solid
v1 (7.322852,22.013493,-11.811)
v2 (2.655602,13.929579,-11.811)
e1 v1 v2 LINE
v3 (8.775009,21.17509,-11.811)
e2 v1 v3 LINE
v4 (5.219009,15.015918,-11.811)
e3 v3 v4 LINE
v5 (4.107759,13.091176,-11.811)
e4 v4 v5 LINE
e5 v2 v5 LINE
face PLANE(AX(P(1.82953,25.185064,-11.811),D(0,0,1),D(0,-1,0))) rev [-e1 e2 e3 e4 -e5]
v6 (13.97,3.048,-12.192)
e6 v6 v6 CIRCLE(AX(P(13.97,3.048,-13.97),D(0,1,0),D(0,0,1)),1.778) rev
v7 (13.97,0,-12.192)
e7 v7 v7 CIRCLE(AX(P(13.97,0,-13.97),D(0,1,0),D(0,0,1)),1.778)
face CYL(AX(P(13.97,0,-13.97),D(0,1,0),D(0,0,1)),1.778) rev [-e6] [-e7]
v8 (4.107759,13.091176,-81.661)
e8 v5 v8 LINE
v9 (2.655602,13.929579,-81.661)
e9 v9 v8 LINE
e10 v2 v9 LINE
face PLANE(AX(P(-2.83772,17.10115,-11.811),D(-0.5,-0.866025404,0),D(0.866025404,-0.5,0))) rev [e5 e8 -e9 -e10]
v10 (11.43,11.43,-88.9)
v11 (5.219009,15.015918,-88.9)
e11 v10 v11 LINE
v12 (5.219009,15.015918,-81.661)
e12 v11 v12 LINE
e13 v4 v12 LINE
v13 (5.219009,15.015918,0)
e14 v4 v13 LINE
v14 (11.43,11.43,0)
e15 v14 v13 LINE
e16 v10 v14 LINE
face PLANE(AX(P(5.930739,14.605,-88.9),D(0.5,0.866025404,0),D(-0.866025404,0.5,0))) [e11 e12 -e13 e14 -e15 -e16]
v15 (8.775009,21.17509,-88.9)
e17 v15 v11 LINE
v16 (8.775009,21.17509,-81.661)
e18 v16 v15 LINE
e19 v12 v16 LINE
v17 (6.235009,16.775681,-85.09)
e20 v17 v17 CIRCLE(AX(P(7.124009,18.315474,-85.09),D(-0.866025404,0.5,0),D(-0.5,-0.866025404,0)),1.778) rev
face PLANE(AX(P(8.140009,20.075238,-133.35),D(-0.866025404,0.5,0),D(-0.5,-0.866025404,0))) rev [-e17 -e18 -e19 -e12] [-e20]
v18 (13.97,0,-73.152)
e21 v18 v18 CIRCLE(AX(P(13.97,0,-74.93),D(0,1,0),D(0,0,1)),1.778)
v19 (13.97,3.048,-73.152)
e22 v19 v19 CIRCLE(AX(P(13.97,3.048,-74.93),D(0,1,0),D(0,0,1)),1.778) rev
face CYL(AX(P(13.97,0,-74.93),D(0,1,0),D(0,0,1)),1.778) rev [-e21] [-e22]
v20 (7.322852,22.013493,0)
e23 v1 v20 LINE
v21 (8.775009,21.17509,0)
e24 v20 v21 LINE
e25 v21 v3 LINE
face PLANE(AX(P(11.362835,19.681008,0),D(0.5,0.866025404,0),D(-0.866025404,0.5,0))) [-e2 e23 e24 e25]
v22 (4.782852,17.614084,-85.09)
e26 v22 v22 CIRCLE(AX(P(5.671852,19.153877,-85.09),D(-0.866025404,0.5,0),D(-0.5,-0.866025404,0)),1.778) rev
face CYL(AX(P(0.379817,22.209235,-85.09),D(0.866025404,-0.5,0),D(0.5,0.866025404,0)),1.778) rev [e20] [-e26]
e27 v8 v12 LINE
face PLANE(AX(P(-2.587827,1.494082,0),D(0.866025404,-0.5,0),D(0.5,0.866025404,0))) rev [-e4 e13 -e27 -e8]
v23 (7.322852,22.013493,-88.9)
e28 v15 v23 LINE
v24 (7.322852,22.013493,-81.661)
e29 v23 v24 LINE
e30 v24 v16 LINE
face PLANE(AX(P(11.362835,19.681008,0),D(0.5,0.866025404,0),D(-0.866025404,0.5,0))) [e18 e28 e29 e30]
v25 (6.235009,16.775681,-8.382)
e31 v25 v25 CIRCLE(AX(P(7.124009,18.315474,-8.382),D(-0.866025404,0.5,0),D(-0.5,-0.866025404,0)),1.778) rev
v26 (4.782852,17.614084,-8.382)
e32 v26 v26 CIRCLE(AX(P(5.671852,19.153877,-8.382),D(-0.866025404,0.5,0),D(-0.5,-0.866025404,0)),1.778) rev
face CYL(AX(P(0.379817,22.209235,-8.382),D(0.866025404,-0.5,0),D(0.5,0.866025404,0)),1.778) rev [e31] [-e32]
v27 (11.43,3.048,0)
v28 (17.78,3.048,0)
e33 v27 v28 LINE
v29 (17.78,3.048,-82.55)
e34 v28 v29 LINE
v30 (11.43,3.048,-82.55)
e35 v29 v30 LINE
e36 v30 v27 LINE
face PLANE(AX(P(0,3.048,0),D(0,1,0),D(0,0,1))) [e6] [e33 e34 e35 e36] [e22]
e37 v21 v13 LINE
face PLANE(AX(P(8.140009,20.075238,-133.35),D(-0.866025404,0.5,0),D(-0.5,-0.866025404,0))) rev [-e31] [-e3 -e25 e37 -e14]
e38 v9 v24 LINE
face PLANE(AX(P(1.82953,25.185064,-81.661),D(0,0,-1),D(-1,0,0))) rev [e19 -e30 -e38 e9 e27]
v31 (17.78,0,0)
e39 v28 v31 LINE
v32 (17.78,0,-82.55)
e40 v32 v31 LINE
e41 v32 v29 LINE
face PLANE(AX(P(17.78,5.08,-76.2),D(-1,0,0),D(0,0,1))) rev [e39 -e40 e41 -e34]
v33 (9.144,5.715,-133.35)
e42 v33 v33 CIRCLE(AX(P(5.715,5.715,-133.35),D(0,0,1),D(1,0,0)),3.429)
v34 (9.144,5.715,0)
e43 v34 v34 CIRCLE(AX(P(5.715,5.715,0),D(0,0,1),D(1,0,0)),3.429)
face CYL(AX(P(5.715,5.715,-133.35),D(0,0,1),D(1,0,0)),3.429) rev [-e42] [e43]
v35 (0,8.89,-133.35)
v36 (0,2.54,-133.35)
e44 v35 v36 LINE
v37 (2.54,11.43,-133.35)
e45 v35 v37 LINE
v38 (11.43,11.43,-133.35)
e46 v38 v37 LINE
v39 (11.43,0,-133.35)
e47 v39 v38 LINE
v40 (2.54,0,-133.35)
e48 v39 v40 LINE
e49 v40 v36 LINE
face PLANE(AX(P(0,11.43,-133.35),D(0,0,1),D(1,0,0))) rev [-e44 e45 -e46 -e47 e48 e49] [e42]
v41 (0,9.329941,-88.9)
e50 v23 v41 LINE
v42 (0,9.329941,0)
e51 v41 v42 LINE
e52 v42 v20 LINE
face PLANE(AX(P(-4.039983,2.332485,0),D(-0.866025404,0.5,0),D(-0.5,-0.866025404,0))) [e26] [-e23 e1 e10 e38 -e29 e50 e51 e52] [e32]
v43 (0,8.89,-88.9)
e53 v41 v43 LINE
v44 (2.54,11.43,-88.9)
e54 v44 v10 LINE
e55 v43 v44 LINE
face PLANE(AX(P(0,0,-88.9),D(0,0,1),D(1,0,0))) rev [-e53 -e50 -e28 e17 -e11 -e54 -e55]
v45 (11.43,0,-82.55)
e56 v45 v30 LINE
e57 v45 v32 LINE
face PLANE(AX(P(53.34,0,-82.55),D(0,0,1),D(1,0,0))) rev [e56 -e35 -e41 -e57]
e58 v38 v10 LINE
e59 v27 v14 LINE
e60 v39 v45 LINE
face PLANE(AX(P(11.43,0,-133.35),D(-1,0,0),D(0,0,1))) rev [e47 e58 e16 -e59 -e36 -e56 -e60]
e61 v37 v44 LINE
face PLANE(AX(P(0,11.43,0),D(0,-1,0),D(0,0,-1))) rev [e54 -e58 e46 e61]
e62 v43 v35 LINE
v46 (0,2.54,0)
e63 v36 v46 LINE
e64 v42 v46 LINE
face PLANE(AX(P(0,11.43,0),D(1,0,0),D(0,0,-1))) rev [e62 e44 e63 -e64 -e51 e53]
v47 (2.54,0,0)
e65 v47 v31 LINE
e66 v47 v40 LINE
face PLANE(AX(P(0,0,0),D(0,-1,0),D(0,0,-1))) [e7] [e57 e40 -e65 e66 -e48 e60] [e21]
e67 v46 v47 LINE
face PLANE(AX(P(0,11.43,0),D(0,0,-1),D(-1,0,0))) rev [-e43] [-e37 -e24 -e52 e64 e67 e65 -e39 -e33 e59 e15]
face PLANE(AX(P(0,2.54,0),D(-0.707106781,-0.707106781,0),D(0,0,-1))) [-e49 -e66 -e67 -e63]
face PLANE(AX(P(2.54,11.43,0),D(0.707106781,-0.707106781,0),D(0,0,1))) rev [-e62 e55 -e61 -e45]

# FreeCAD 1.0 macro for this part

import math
import FreeCAD as App
import Part
import Sketcher
from FreeCAD import Vector
Q = App.Units.Quantity


def edges_at(feature, points):
    """Names of the edges that pass closest to the given points."""
    edges = feature.Shape.Edges
    near = lambda p: min(range(len(edges)), key=lambda i: edges[i].distToShape(Part.Vertex(*p))[0])
    return sorted({f"Edge{near(p) + 1}" for p in points})

doc = App.newDocument("Part")
body = doc.addObject("PartDesign::Body", "Body")

# Sketch on XZ plane
sketch1 = body.newObject("Sketcher::SketchObject", "Sketch")
sketch1.AttachmentSupport = (doc.getObject("XZ_Plane"), [""])
sketch1.MapMode = "FlatFace"
sketch1.addGeometry([
    Part.LineSegment(Vector(0, -133, 0), Vector(0, 0, 0)),
    Part.LineSegment(Vector(0, 0, 0), Vector(77, 0, 0)),
    Part.LineSegment(Vector(77, 0, 0), Vector(77, -133, 0)),
    Part.LineSegment(Vector(77, -133, 0), Vector(0, -133, 0)),
], False)
sketch1.addConstraint([
    Sketcher.Constraint("Coincident", 0, 2, 1, 1),
    Sketcher.Constraint("Coincident", 1, 2, 2, 1),
    Sketcher.Constraint("Coincident", 2, 2, 3, 1),
    Sketcher.Constraint("Coincident", 3, 2, 0, 1),
    Sketcher.Constraint("Vertical", 0),
    Sketcher.Constraint("Horizontal", 1),
    Sketcher.Constraint("Vertical", 2),
    Sketcher.Constraint("Horizontal", 3),
    Sketcher.Constraint("Coincident", 0, 2, -1, 1),
    Sketcher.Constraint("DistanceX", 1, 1, 1, 2, Q("3.05 in")),
    Sketcher.Constraint("DistanceY", 0, 1, 0, 2, Q("5.25 in")),
])
pad1 = body.newObject("PartDesign::Pad", "Pad")
pad1.Profile = sketch1
pad1.Length = Q("0.45 in")
pad1.Reversed = True

# Sketch on XY plane
sketch2 = body.newObject("Sketcher::SketchObject", "Sketch001")
sketch2.AttachmentSupport = (doc.getObject("XY_Plane"), [""])
sketch2.MapMode = "FlatFace"
sketch2.addGeometry([
    Part.Circle(Vector(5.7, 5.7, 0), Vector(0, 0, 1), 3.4),
    Part.Circle(Vector(71.8, 5.7, 0), Vector(0, 0, 1), 3.4),
], False)
sketch2.addConstraint([
    Sketcher.Constraint("Equal", 0, 1),
    Sketcher.Constraint("Horizontal", 0, 3, 1, 3),
    Sketcher.Constraint("Diameter", 0, Q("0.27 in")),
    Sketcher.Constraint("DistanceX", 0, 3, 1, 3, Q("2.6 in")),
    Sketcher.Constraint("DistanceX", -1, 1, 0, 3, Q("0.225 in")),
    Sketcher.Constraint("DistanceY", -1, 1, 0, 3, Q("0.225 in")),
])
pocket1 = body.newObject("PartDesign::Pocket", "Pocket")
pocket1.Profile = sketch2
pocket1.Type = "ThroughAll"

# Sketch on XZ plane
sketch3 = body.newObject("Sketcher::SketchObject", "Sketch002")
sketch3.AttachmentSupport = (doc.getObject("XZ_Plane"), [""])
sketch3.MapMode = "FlatFace"
sketch3.AttachmentOffset = App.Placement(Vector(0, 0, -0.45 * 25.4), App.Rotation())
sketch3.addGeometry([
    Part.LineSegment(Vector(11, -133, 0), Vector(11, -95, 0)),  # 0
    Part.ArcOfCircle(Part.Circle(Vector(24, -95, 0), Vector(0, 0, 1), 13), math.radians(90), math.radians(180)),  # 1
    Part.LineSegment(Vector(24, -83, 0), Vector(53, -83, 0)),  # 2
    Part.ArcOfCircle(Part.Circle(Vector(53, -95, 0), Vector(0, 0, 1), 13), math.radians(0), math.radians(90)),  # 3
    Part.LineSegment(Vector(66, -95, 0), Vector(66, -133, 0)),  # 4
    Part.LineSegment(Vector(66, -133, 0), Vector(11, -133, 0)),  # 5
], False)
sketch3.addConstraint([
    Sketcher.Constraint("Tangent", 0, 2, 1, 2),
    Sketcher.Constraint("Tangent", 1, 1, 2, 1),
    Sketcher.Constraint("Tangent", 2, 2, 3, 2),
    Sketcher.Constraint("Tangent", 3, 1, 4, 1),
    Sketcher.Constraint("Coincident", 4, 2, 5, 1),
    Sketcher.Constraint("Coincident", 5, 2, 0, 1),
    Sketcher.Constraint("Vertical", 0),
    Sketcher.Constraint("Horizontal", 2),
    Sketcher.Constraint("Vertical", 4),
    Sketcher.Constraint("Horizontal", 5),
    Sketcher.Constraint("Equal", 1, 3),
    Sketcher.Constraint("Radius", 1, Q("0.5 in")),
    Sketcher.Constraint("DistanceY", 0, 1, 0, 2, Q("1.5 in")),
    Sketcher.Constraint("DistanceX", 2, 1, 2, 2, Q("1.15 in")),
    Sketcher.Constraint("DistanceX", -1, 1, 3, 3, Q("2.1 in")),
    Sketcher.Constraint("DistanceY", 1, 3, -1, 1, Q("3.75 in")),
])
pocket2 = body.newObject("PartDesign::Pocket", "Pocket001")
pocket2.Profile = sketch3
pocket2.Type = "ThroughAll"
pocket2.Reversed = True

# Sketch on XY plane
sketch4 = body.newObject("Sketcher::SketchObject", "Sketch003")
sketch4.AttachmentSupport = (doc.getObject("XY_Plane"), [""])
sketch4.MapMode = "FlatFace"
sketch4.AttachmentOffset = App.Placement(Vector(0, 0, -5.25 * 25.4), App.Rotation())
sketch4.addGeometry([
    Part.LineSegment(Vector(66, 11, 0), Vector(66, 5, 0)),
    Part.LineSegment(Vector(66, 5, 0), Vector(11, 5, 0)),
    Part.LineSegment(Vector(11, 5, 0), Vector(11, 11, 0)),
    Part.LineSegment(Vector(11, 11, 0), Vector(66, 11, 0)),
], False)
sketch4.addConstraint([
    Sketcher.Constraint("Coincident", 0, 2, 1, 1),
    Sketcher.Constraint("Coincident", 1, 2, 2, 1),
    Sketcher.Constraint("Coincident", 2, 2, 3, 1),
    Sketcher.Constraint("Coincident", 3, 2, 0, 1),
    Sketcher.Constraint("Vertical", 0),
    Sketcher.Constraint("Horizontal", 1),
    Sketcher.Constraint("Vertical", 2),
    Sketcher.Constraint("Horizontal", 3),
    Sketcher.Constraint("DistanceX", 1, 2, 1, 1, Q("2.15 in")),
    Sketcher.Constraint("DistanceY", 0, 2, 0, 1, Q("0.25 in")),
    Sketcher.Constraint("DistanceX", -1, 1, 0, 2, Q("2.6 in")),
    Sketcher.Constraint("DistanceY", -1, 1, 0, 2, Q("0.2 in")),
])
pocket3 = body.newObject("PartDesign::Pocket", "Pocket002")
pocket3.Profile = sketch4
pocket3.Type = "ThroughAll"
pocket3.Reversed = True
doc.recompute()

chamfer = body.newObject("PartDesign::Chamfer", "Chamfer")
chamfer.Base = (pocket3, edges_at(pocket3, [
    (77.47, 11.43, -66.675),
    (0, 11.43, -66.675),
    (77.47, 0, -66.675),
    (0, 0, -66.675),
]))
chamfer.Size = Q("0.1 in")

# Sketch on XZ plane
sketch5 = body.newObject("Sketcher::SketchObject", "Sketch004")
sketch5.AttachmentSupport = (doc.getObject("XZ_Plane"), [""])
sketch5.MapMode = "FlatFace"
sketch5.AttachmentOffset = App.Placement(Vector(0, 0, -0.45 * 25.4), App.Rotation())
sketch5.addGeometry([
    Part.LineSegment(Vector(11, -83, 0), Vector(77, -83, 0)),
    Part.LineSegment(Vector(77, -83, 0), Vector(77, -133, 0)),
    Part.LineSegment(Vector(77, -133, 0), Vector(11, -133, 0)),
    Part.LineSegment(Vector(11, -133, 0), Vector(11, -83, 0)),
], False)
sketch5.addConstraint([
    Sketcher.Constraint("Coincident", 0, 2, 1, 1),
    Sketcher.Constraint("Coincident", 1, 2, 2, 1),
    Sketcher.Constraint("Coincident", 2, 2, 3, 1),
    Sketcher.Constraint("Coincident", 3, 2, 0, 1),
    Sketcher.Constraint("Horizontal", 0),
    Sketcher.Constraint("Vertical", 1),
    Sketcher.Constraint("Horizontal", 2),
    Sketcher.Constraint("Vertical", 3),
    Sketcher.Constraint("DistanceY", 1, 2, 1, 1, Q("2 in")),
    Sketcher.Constraint("DistanceX", 0, 1, 0, 2, Q("2.6 in")),
    Sketcher.Constraint("DistanceX", -1, 1, 0, 2, Q("3.05 in")),
    Sketcher.Constraint("DistanceY", 0, 2, -1, 1, Q("3.25 in")),
])
pocket4 = body.newObject("PartDesign::Pocket", "Pocket003")
pocket4.Profile = sketch5
pocket4.Type = "ThroughAll"
pocket4.Reversed = True

# Sketch on XZ plane
sketch6 = body.newObject("Sketcher::SketchObject", "Sketch005")
sketch6.AttachmentSupport = (doc.getObject("XZ_Plane"), [""])
sketch6.MapMode = "FlatFace"
sketch6.AttachmentOffset = App.Placement(Vector(0, 0, -0.45 * 25.4), App.Rotation())
sketch6.addGeometry([
    Part.LineSegment(Vector(24, -83, 0), Vector(24, 0, 0)),
    Part.LineSegment(Vector(24, 0, 0), Vector(77, 0, 0)),
    Part.LineSegment(Vector(77, 0, 0), Vector(77, -83, 0)),
    Part.LineSegment(Vector(77, -83, 0), Vector(24, -83, 0)),
], False)
sketch6.addConstraint([
    Sketcher.Constraint("Coincident", 0, 2, 1, 1),
    Sketcher.Constraint("Coincident", 1, 2, 2, 1),
    Sketcher.Constraint("Coincident", 2, 2, 3, 1),
    Sketcher.Constraint("Coincident", 3, 2, 0, 1),
    Sketcher.Constraint("Vertical", 0),
    Sketcher.Constraint("Horizontal", 1),
    Sketcher.Constraint("Vertical", 2),
    Sketcher.Constraint("Horizontal", 3),
    Sketcher.Constraint("PointOnObject", 0, 2, -1),
    Sketcher.Constraint("DistanceX", 1, 1, 1, 2, Q("2.1 in")),
    Sketcher.Constraint("DistanceY", 0, 1, 0, 2, Q("3.25 in")),
    Sketcher.Constraint("DistanceX", -1, 1, 0, 2, Q("0.95 in")),
])
pocket5 = body.newObject("PartDesign::Pocket", "Pocket004")
pocket5.Profile = sketch6
pocket5.Type = "ThroughAll"
pocket5.Reversed = True

# Sketch on XZ plane
sketch7 = body.newObject("Sketcher::SketchObject", "Sketch006")
sketch7.AttachmentSupport = (doc.getObject("XZ_Plane"), [""])
sketch7.MapMode = "FlatFace"
sketch7.AttachmentOffset = App.Placement(Vector(0, 0, -0.2 * 25.4), App.Rotation())
sketch7.addGeometry([
    Part.Circle(Vector(14, -74.9, 0), Vector(0, 0, 1), 1.8),
    Part.Circle(Vector(14, -14, 0), Vector(0, 0, 1), 1.8),
], False)
sketch7.addConstraint([
    Sketcher.Constraint("Equal", 0, 1),
    Sketcher.Constraint("Vertical", 0, 3, 1, 3),
    Sketcher.Constraint("Diameter", 0, Q("0.14 in")),
    Sketcher.Constraint("DistanceY", 0, 3, 1, 3, Q("2.4 in")),
    Sketcher.Constraint("DistanceX", -1, 1, 0, 3, Q("0.55 in")),
    Sketcher.Constraint("DistanceY", 0, 3, -1, 1, Q("2.95 in")),
])
pocket6 = body.newObject("PartDesign::Pocket", "Pocket005")
pocket6.Profile = sketch7
pocket6.Type = "ThroughAll"
pocket6.Reversed = True

# Sketch on XY plane
sketch8 = body.newObject("Sketcher::SketchObject", "Sketch007")
sketch8.AttachmentSupport = (doc.getObject("XY_Plane"), [""])
sketch8.MapMode = "FlatFace"
sketch8.addGeometry([
    Part.LineSegment(Vector(0, 11.9, 0), Vector(0, 8.9, 0)),  # 0
    Part.LineSegment(Vector(0, 8.9, 0), Vector(2.5, 11.4, 0)),  # 1
    Part.LineSegment(Vector(2.5, 11.4, 0), Vector(11.4, 11.4, 0)),  # 2
    Part.LineSegment(Vector(11.4, 11.4, 0), Vector(5.9, 14.6, 0)),  # 3
    Part.LineSegment(Vector(5.9, 14.6, 0), Vector(8.9, 19.7, 0)),  # 4
    Part.LineSegment(Vector(8.9, 19.7, 0), Vector(5.6, 21.5, 0)),  # 5
    Part.LineSegment(Vector(5.6, 21.5, 0), Vector(0, 11.9, 0)),  # 6
], False)
sketch8.addConstraint([
    Sketcher.Constraint("Coincident", 0, 2, 1, 1),
    Sketcher.Constraint("Coincident", 1, 2, 2, 1),
    Sketcher.Constraint("Coincident", 2, 2, 3, 1),
    Sketcher.Constraint("Coincident", 3, 2, 4, 1),
    Sketcher.Constraint("Coincident", 4, 2, 5, 1),
    Sketcher.Constraint("Coincident", 5, 2, 6, 1),
    Sketcher.Constraint("Coincident", 6, 2, 0, 1),
    Sketcher.Constraint("Vertical", 0),
    Sketcher.Constraint("Horizontal", 2),
    Sketcher.Constraint("PointOnObject", 0, 2, -2),
    Sketcher.Constraint("Perpendicular", 3, 4),
    Sketcher.Constraint("Perpendicular", 4, 5),
    Sketcher.Constraint("Perpendicular", 5, 6),
    Sketcher.Constraint("Angle", 1, Q("45 deg")),
    Sketcher.Constraint("Angle", 3, Q("150 deg")),
    Sketcher.Constraint("DistanceX", 2, 1, 2, 2, Q("0.35 in")),
    Sketcher.Constraint("DistanceX", -1, 1, 1, 2, Q("0.1 in")),
    Sketcher.Constraint("Distance", 3, Q("0.25 in")),
    Sketcher.Constraint("Distance", 4, Q("0.23 in")),
    Sketcher.Constraint("Distance", 6, Q("0.44 in")),
    Sketcher.Constraint("DistanceY", -1, 1, 0, 2, Q("0.35 in")),
])
pad2 = body.newObject("PartDesign::Pad", "Pad001")
pad2.Profile = sketch8
pad2.Length = Q("3.5 in")
pad2.Reversed = True

# Sketch on XY plane
sketch9 = body.newObject("Sketcher::SketchObject", "Sketch008")
sketch9.AttachmentSupport = (doc.getObject("XY_Plane"), [""])
sketch9.MapMode = "FlatFace"
sketch9.addGeometry([
    Part.LineSegment(Vector(18, 5, 0), Vector(18, 0, 0)),
    Part.LineSegment(Vector(18, 0, 0), Vector(24, 0, 0)),
    Part.LineSegment(Vector(24, 0, 0), Vector(24, 5, 0)),
    Part.LineSegment(Vector(24, 5, 0), Vector(18, 5, 0)),
], False)
sketch9.addConstraint([
    Sketcher.Constraint("Coincident", 0, 2, 1, 1),
    Sketcher.Constraint("Coincident", 1, 2, 2, 1),
    Sketcher.Constraint("Coincident", 2, 2, 3, 1),
    Sketcher.Constraint("Coincident", 3, 2, 0, 1),
    Sketcher.Constraint("Vertical", 0),
    Sketcher.Constraint("Horizontal", 1),
    Sketcher.Constraint("Vertical", 2),
    Sketcher.Constraint("Horizontal", 3),
    Sketcher.Constraint("PointOnObject", 0, 2, -1),
    Sketcher.Constraint("DistanceY", 0, 2, 0, 1, Q("0.2 in")),
    Sketcher.Constraint("DistanceX", 1, 1, 1, 2, Q("0.25 in")),
    Sketcher.Constraint("DistanceX", -1, 1, 0, 2, Q("0.7 in")),
])
pocket7 = body.newObject("PartDesign::Pocket", "Pocket006")
pocket7.Profile = sketch9
pocket7.Length = Q("3 in")

# Sketch on an angled plane
sketch10 = body.newObject("Sketcher::SketchObject", "Sketch009")
sketch10.Placement = App.Placement(Vector(-1.876096, 1.083165, 0), App.Rotation(Vector(0, 0, -1), Vector(0.5, 0.866025404, 0), Vector(0.866025404, -0.5, 0), "ZXY"))
sketch10.addGeometry(Part.Circle(Vector(8.4, 19.4, 0), Vector(0, 0, 1), 1.8), False)
sketch10.addConstraint([
    Sketcher.Constraint("Diameter", 0, Q("0.14 in")),
    Sketcher.Constraint("DistanceX", -1, 1, 0, 3, Q("0.33 in")),
    Sketcher.Constraint("DistanceY", -1, 1, 0, 3, Q("19.42367 mm")),
])
pocket8 = body.newObject("PartDesign::Pocket", "Pocket007")
pocket8.Profile = sketch10
pocket8.Type = "UpToFirst"

# Sketch on an angled plane
sketch11 = body.newObject("Sketcher::SketchObject", "Sketch010")
sketch11.Placement = App.Placement(Vector(-1.876096, 1.083165, 0), App.Rotation(Vector(0, 0, -1), Vector(0.5, 0.866025404, 0), Vector(0.866025404, -0.5, 0), "ZXY"))
sketch11.addGeometry(Part.Circle(Vector(85.1, 19.4, 0), Vector(0, 0, 1), 1.8), False)
sketch11.addConstraint([
    Sketcher.Constraint("Diameter", 0, Q("0.14 in")),
    Sketcher.Constraint("DistanceX", -1, 1, 0, 3, Q("3.35 in")),
    Sketcher.Constraint("DistanceY", -1, 1, 0, 3, Q("19.42367 mm")),
])
pocket9 = body.newObject("PartDesign::Pocket", "Pocket008")
pocket9.Profile = sketch11
pocket9.Type = "UpToFirst"

# Sketch on an angled plane
sketch12 = body.newObject("Sketcher::SketchObject", "Sketch011")
sketch12.Placement = App.Placement(Vector(-5.139835, 2.967485, 0), App.Rotation(Vector(0, 0, 1), Vector(0.5, 0.866025404, 0), Vector(-0.866025404, 0.5, 0), "ZXY"))
sketch12.addGeometry([
    Part.LineSegment(Vector(-89, 21, 0), Vector(-89, 10, 0)),
    Part.LineSegment(Vector(-89, 10, 0), Vector(0, 10, 0)),
    Part.LineSegment(Vector(0, 10, 0), Vector(0, 21, 0)),
    Part.LineSegment(Vector(0, 21, 0), Vector(-89, 21, 0)),
], False)
sketch12.addConstraint([
    Sketcher.Constraint("Coincident", 0, 2, 1, 1),
    Sketcher.Constraint("Coincident", 1, 2, 2, 1),
    Sketcher.Constraint("Coincident", 2, 2, 3, 1),
    Sketcher.Constraint("Coincident", 3, 2, 0, 1),
    Sketcher.Constraint("Vertical", 0),
    Sketcher.Constraint("Horizontal", 1),
    Sketcher.Constraint("Vertical", 2),
    Sketcher.Constraint("Horizontal", 3),
    Sketcher.Constraint("PointOnObject", 1, 2, -2),
    Sketcher.Constraint("DistanceX", 1, 1, 1, 2, Q("3.5 in")),
    Sketcher.Constraint("DistanceY", 0, 2, 0, 1, Q("0.44 in")),
    Sketcher.Constraint("DistanceY", -1, 1, 0, 2, Q("10.27967 mm")),
])
pocket10 = body.newObject("PartDesign::Pocket", "Pocket009")
pocket10.Profile = sketch12
pocket10.Length = Q("0.05 in")

# Sketch on XY plane
sketch13 = body.newObject("Sketcher::SketchObject", "Sketch012")
sketch13.AttachmentSupport = (doc.getObject("XY_Plane"), [""])
sketch13.MapMode = "FlatFace"
sketch13.addGeometry([
    Part.LineSegment(Vector(13, 18, 0), Vector(8, 20, 0)),
    Part.LineSegment(Vector(8, 20, 0), Vector(5, 15, 0)),
    Part.LineSegment(Vector(5, 15, 0), Vector(10, 12, 0)),
    Part.LineSegment(Vector(10, 12, 0), Vector(13, 18, 0)),
], False)
sketch13.addConstraint([
    Sketcher.Constraint("Coincident", 0, 2, 1, 1),
    Sketcher.Constraint("Coincident", 1, 2, 2, 1),
    Sketcher.Constraint("Coincident", 2, 2, 3, 1),
    Sketcher.Constraint("Coincident", 3, 2, 0, 1),
    Sketcher.Constraint("Perpendicular", 0, 1),
    Sketcher.Constraint("Perpendicular", 1, 2),
    Sketcher.Constraint("Perpendicular", 2, 3),
    Sketcher.Constraint("Angle", 0, Q("150 deg")),
    Sketcher.Constraint("Distance", 0, Q("0.2 in")),
    Sketcher.Constraint("Distance", 1, Q("0.23 in")),
    Sketcher.Constraint("DistanceX", -1, 1, 0, 2, Q("8.140009 mm")),
    Sketcher.Constraint("DistanceY", -1, 1, 0, 2, Q("20.075238 mm")),
])
pocket11 = body.newObject("PartDesign::Pocket", "Pocket010")
pocket11.Profile = sketch13
pocket11.Type = "ThroughAll"

# Sketch on XZ plane
sketch14 = body.newObject("Sketcher::SketchObject", "Sketch013")
sketch14.AttachmentSupport = (doc.getObject("XZ_Plane"), [""])
sketch14.MapMode = "FlatFace"
sketch14.AttachmentOffset = App.Placement(Vector(0, 0, -0.2 * 25.4), App.Rotation())
sketch14.addGeometry([
    Part.LineSegment(Vector(11, -83, 0), Vector(11, 0, 0)),
    Part.LineSegment(Vector(11, 0, 0), Vector(18, 0, 0)),
    Part.LineSegment(Vector(18, 0, 0), Vector(18, -83, 0)),
    Part.LineSegment(Vector(18, -83, 0), Vector(11, -83, 0)),
], False)
sketch14.addConstraint([
    Sketcher.Constraint("Coincident", 0, 2, 1, 1),
    Sketcher.Constraint("Coincident", 1, 2, 2, 1),
    Sketcher.Constraint("Coincident", 2, 2, 3, 1),
    Sketcher.Constraint("Coincident", 3, 2, 0, 1),
    Sketcher.Constraint("Vertical", 0),
    Sketcher.Constraint("Horizontal", 1),
    Sketcher.Constraint("Vertical", 2),
    Sketcher.Constraint("Horizontal", 3),
    Sketcher.Constraint("PointOnObject", 0, 2, -1),
    Sketcher.Constraint("DistanceX", 1, 1, 1, 2, Q("0.25 in")),
    Sketcher.Constraint("DistanceY", 0, 1, 0, 2, Q("3.25 in")),
    Sketcher.Constraint("DistanceX", -1, 1, 1, 2, Q("0.7 in")),
])
pocket12 = body.newObject("PartDesign::Pocket", "Pocket011")
pocket12.Profile = sketch14
pocket12.Length = Q("0.08 in")
pocket12.Reversed = True

# Sketch on an angled plane
sketch15 = body.newObject("Sketcher::SketchObject", "Sketch014")
sketch15.Placement = App.Placement(Vector(10.727835, 18.581156, 0), App.Rotation(Vector(0.866025404, -0.5, 0), Vector(0, 0, -1), Vector(0.5, 0.866025404, 0), "ZXY"))
sketch15.addGeometry([
    Part.LineSegment(Vector(-4.7, 88.9, 0), Vector(-4.7, 0, 0)),
    Part.LineSegment(Vector(-4.7, 0, 0), Vector(-3, 0, 0)),
    Part.LineSegment(Vector(-3, 0, 0), Vector(-3, 88.9, 0)),
    Part.LineSegment(Vector(-3, 88.9, 0), Vector(-4.7, 88.9, 0)),
], False)
sketch15.addConstraint([
    Sketcher.Constraint("Coincident", 0, 2, 1, 1),
    Sketcher.Constraint("Coincident", 1, 2, 2, 1),
    Sketcher.Constraint("Coincident", 2, 2, 3, 1),
    Sketcher.Constraint("Coincident", 3, 2, 0, 1),
    Sketcher.Constraint("Vertical", 0),
    Sketcher.Constraint("Horizontal", 1),
    Sketcher.Constraint("Vertical", 2),
    Sketcher.Constraint("Horizontal", 3),
    Sketcher.Constraint("PointOnObject", 0, 2, -1),
    Sketcher.Constraint("DistanceY", 0, 2, 0, 1, Q("3.5 in")),
    Sketcher.Constraint("DistanceX", 1, 1, 1, 2, Q("1.676806 mm")),
    Sketcher.Constraint("DistanceX", 0, 2, -1, 1, Q("4.66497 mm")),
])
pad3 = body.newObject("PartDesign::Pad", "Pad002")
pad3.Profile = sketch15
pad3.Length = Q("0.05 in")

# Sketch on an angled plane
sketch16 = body.newObject("Sketcher::SketchObject", "Sketch015")
sketch16.Placement = App.Placement(Vector(-2.587827, 1.494082, 0), App.Rotation(Vector(0, 0, -1), Vector(0.5, 0.866025404, 0), Vector(0.866025404, -0.5, 0), "ZXY"))
sketch16.addGeometry([
    Part.LineSegment(Vector(12, 23, 0), Vector(12, 13, 0)),
    Part.LineSegment(Vector(12, 13, 0), Vector(82, 13, 0)),
    Part.LineSegment(Vector(82, 13, 0), Vector(82, 23, 0)),
    Part.LineSegment(Vector(82, 23, 0), Vector(12, 23, 0)),
], False)
sketch16.addConstraint([
    Sketcher.Constraint("Coincident", 0, 2, 1, 1),
    Sketcher.Constraint("Coincident", 1, 2, 2, 1),
    Sketcher.Constraint("Coincident", 2, 2, 3, 1),
    Sketcher.Constraint("Coincident", 3, 2, 0, 1),
    Sketcher.Constraint("Vertical", 0),
    Sketcher.Constraint("Horizontal", 1),
    Sketcher.Constraint("Vertical", 2),
    Sketcher.Constraint("Horizontal", 3),
    Sketcher.Constraint("DistanceX", 1, 1, 1, 2, Q("2.75 in")),
    Sketcher.Constraint("DistanceY", 0, 2, 0, 1, Q("0.3675 in")),
    Sketcher.Constraint("DistanceX", -1, 1, 0, 2, Q("0.465 in")),
    Sketcher.Constraint("DistanceY", -1, 1, 0, 2, Q("13.39117 mm")),
])
pocket13 = body.newObject("PartDesign::Pocket", "Pocket012")
pocket13.Profile = sketch16
pocket13.Type = "UpToFirst"

# Sketch on an angled plane
sketch17 = body.newObject("Sketcher::SketchObject", "Sketch016")
sketch17.Placement = App.Placement(Vector(5.139835, 8.902456, 0), App.Rotation(Vector(0.866025404, -0.5, 0), Vector(0, 0, -1), Vector(0.5, 0.866025404, 0), "ZXY"))
sketch17.addGeometry([
    Part.LineSegment(Vector(-5.9, 88.9, 0), Vector(-5.9, 0, 0)),
    Part.LineSegment(Vector(-5.9, 0, 0), Vector(-4.7, 0, 0)),
    Part.LineSegment(Vector(-4.7, 0, 0), Vector(-4.7, 88.9, 0)),
    Part.LineSegment(Vector(-4.7, 88.9, 0), Vector(-5.9, 88.9, 0)),
], False)
sketch17.addConstraint([
    Sketcher.Constraint("Coincident", 0, 2, 1, 1),
    Sketcher.Constraint("Coincident", 1, 2, 2, 1),
    Sketcher.Constraint("Coincident", 2, 2, 3, 1),
    Sketcher.Constraint("Coincident", 3, 2, 0, 1),
    Sketcher.Constraint("Vertical", 0),
    Sketcher.Constraint("Horizontal", 1),
    Sketcher.Constraint("Vertical", 2),
    Sketcher.Constraint("Horizontal", 3),
    Sketcher.Constraint("PointOnObject", 0, 2, -1),
    Sketcher.Constraint("DistanceY", 0, 2, 0, 1, Q("3.5 in")),
    Sketcher.Constraint("DistanceX", 1, 1, 1, 2, Q("0.05 in")),
    Sketcher.Constraint("DistanceX", 0, 2, -1, 1, Q("5.93497 mm")),
])
pocket14 = body.newObject("PartDesign::Pocket", "Pocket013")
pocket14.Profile = sketch17
pocket14.Type = "UpToFirst"

# Sketch on XZ plane
sketch18 = body.newObject("Sketcher::SketchObject", "Sketch017")
sketch18.AttachmentSupport = (doc.getObject("XZ_Plane"), [""])
sketch18.MapMode = "FlatFace"
sketch18.AttachmentOffset = App.Placement(Vector(0, 0, -0.2 * 25.4), App.Rotation())
sketch18.addGeometry([
    Part.LineSegment(Vector(18, -83, 0), Vector(18, -76, 0)),
    Part.LineSegment(Vector(18, -76, 0), Vector(24, -76, 0)),
    Part.LineSegment(Vector(24, -76, 0), Vector(24, -83, 0)),
    Part.LineSegment(Vector(24, -83, 0), Vector(18, -83, 0)),
], False)
sketch18.addConstraint([
    Sketcher.Constraint("Coincident", 0, 2, 1, 1),
    Sketcher.Constraint("Coincident", 1, 2, 2, 1),
    Sketcher.Constraint("Coincident", 2, 2, 3, 1),
    Sketcher.Constraint("Coincident", 3, 2, 0, 1),
    Sketcher.Constraint("Vertical", 0),
    Sketcher.Constraint("Horizontal", 1),
    Sketcher.Constraint("Vertical", 2),
    Sketcher.Constraint("Horizontal", 3),
    Sketcher.Constraint("Equal", 3, 0),
    Sketcher.Constraint("DistanceY", 0, 2, -1, 1, Q("3 in")),
    Sketcher.Constraint("DistanceX", 1, 1, 1, 2, Q("0.25 in")),
    Sketcher.Constraint("DistanceX", -1, 1, 0, 2, Q("0.7 in")),
])
pocket15 = body.newObject("PartDesign::Pocket", "Pocket014")
pocket15.Profile = sketch18
pocket15.Type = "UpToFirst"
pocket15.Reversed = True

doc.recompute()
